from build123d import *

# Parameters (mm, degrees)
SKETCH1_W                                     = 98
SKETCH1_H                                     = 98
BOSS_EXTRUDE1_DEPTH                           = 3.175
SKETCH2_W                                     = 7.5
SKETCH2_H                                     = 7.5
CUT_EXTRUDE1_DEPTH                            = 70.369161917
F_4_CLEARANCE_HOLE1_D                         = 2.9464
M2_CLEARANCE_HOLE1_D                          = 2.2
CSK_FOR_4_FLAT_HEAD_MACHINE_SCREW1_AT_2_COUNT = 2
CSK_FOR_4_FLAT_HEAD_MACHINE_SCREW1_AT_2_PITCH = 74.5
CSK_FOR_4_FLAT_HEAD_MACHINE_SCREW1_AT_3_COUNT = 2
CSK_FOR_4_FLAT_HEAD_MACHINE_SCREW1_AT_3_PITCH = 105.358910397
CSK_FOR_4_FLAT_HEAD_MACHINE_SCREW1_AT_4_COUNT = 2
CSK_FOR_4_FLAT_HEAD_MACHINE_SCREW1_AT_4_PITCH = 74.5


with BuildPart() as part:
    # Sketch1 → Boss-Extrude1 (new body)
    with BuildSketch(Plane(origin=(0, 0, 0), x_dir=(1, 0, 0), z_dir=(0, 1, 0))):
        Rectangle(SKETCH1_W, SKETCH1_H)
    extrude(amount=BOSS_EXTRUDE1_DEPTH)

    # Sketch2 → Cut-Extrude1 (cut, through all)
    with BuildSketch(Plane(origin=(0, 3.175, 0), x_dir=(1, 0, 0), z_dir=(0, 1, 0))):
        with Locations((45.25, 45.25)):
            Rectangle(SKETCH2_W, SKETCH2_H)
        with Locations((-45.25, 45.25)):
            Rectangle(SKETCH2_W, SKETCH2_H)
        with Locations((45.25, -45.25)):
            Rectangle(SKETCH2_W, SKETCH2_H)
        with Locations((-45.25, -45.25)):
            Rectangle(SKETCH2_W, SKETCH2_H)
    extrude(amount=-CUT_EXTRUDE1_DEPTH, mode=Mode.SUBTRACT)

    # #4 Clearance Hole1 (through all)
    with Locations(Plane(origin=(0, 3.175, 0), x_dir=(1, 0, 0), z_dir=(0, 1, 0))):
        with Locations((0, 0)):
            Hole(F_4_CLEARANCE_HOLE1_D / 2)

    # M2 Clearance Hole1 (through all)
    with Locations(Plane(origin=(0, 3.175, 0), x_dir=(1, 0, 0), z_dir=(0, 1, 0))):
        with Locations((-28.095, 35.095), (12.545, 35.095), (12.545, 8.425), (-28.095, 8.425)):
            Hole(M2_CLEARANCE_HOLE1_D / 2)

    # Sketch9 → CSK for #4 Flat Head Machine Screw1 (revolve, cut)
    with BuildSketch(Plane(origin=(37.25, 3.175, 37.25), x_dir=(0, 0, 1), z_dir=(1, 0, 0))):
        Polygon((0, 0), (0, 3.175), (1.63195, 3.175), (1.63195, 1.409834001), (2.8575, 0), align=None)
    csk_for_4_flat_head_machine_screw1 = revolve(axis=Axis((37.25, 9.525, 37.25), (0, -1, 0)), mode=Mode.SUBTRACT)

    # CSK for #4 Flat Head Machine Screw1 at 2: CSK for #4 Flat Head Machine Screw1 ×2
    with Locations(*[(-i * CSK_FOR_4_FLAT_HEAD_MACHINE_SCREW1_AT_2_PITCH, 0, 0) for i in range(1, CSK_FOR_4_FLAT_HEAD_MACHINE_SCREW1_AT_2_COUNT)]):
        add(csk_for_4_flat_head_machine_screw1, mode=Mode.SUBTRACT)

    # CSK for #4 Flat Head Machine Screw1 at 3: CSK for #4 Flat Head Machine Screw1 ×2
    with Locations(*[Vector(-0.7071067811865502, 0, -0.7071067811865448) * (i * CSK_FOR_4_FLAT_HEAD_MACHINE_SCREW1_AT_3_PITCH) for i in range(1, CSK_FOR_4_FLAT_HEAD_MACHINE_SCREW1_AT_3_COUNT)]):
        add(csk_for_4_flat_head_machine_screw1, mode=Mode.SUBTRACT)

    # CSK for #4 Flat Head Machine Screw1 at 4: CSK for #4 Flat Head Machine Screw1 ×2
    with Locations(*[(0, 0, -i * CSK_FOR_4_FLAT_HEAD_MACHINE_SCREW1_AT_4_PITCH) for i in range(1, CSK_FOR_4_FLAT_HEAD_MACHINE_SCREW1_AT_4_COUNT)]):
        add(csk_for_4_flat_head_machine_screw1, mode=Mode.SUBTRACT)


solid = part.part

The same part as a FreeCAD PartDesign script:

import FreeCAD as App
import Part
import Sketcher

V = App.Vector
Q = App.Units.Quantity


def add_polygon(sketch, points):
    """Adds a closed chain of lines whose ends are joined by coincident constraints."""
    first, n = sketch.GeometryCount, len(points)
    for a, b in zip(points, points[1:] + points[:1]):
        sketch.addGeometry(Part.LineSegment(App.Vector(*a, 0), App.Vector(*b, 0)), False)
    for i in range(n):
        sketch.addConstraint(Sketcher.Constraint("Coincident", first + i, 2, first + (i + 1) % n, 1))

doc = App.newDocument("Part")
body = doc.addObject("PartDesign::Body", "Body")

# Sketch on XZ plane
sketch1 = doc.addObject("Sketcher::SketchObject", "Sketch")
body.addObject(sketch1)
sketch1.AttachmentSupport = (doc.XZ_Plane, [""])
sketch1.MapMode = "FlatFace"
add_polygon(sketch1, [(-49, -49), (-49, 49), (49, 49), (49, -49)])  # lines 0-3
sketch1.addConstraint([
    Sketcher.Constraint("Vertical", 0),
    Sketcher.Constraint("Horizontal", 1),
    Sketcher.Constraint("Vertical", 2),
    Sketcher.Constraint("Horizontal", 3),
    Sketcher.Constraint("Symmetric", 0, 2, 2, 2, -1, 1),
    Sketcher.Constraint("Equal", 3, 0),
    Sketcher.Constraint("DistanceX", 1, 1, 1, 2, 98.0),
])
pad1 = doc.addObject("PartDesign::Pad", "Pad")
body.addObject(pad1)
pad1.Profile = sketch1
pad1.Length = 3.175
pad1.Reversed = True

# Sketch on XZ plane
sketch2 = doc.addObject("Sketcher::SketchObject", "Sketch001")
body.addObject(sketch2)
sketch2.AttachmentSupport = (doc.XZ_Plane, [""])
sketch2.MapMode = "FlatFace"
sketch2.AttachmentOffset = App.Placement(V(0, 0, -3.175), App.Rotation())
add_polygon(sketch2, [(42, -49), (42, -42), (49, -42), (49, -49)])  # lines 0-3
add_polygon(sketch2, [(-49, -49), (-49, -42), (-42, -42), (-42, -49)])  # lines 4-7
add_polygon(sketch2, [(42, 42), (42, 49), (49, 49), (49, 42)])  # lines 8-11
add_polygon(sketch2, [(-49, 42), (-49, 49), (-42, 49), (-42, 42)])  # lines 12-15
sketch2.addConstraint([
    Sketcher.Constraint("Vertical", 0),
    Sketcher.Constraint("Horizontal", 1),
    Sketcher.Constraint("Vertical", 2),
    Sketcher.Constraint("Horizontal", 3),
    Sketcher.Constraint("Vertical", 4),
    Sketcher.Constraint("Horizontal", 5),
    Sketcher.Constraint("Vertical", 6),
    Sketcher.Constraint("Horizontal", 7),
    Sketcher.Constraint("Vertical", 8),
    Sketcher.Constraint("Horizontal", 9),
    Sketcher.Constraint("Vertical", 10),
    Sketcher.Constraint("Horizontal", 11),
    Sketcher.Constraint("Vertical", 12),
    Sketcher.Constraint("Horizontal", 13),
    Sketcher.Constraint("Vertical", 14),
    Sketcher.Constraint("Horizontal", 15),
    Sketcher.Constraint("Symmetric", 6, 2, 8, 2, -1, 1),
    Sketcher.Constraint("Symmetric", 4, 2, 10, 2, -1, 1),
    Sketcher.Constraint("Symmetric", 2, 2, 12, 2, -1, 1),
    Sketcher.Constraint("Symmetric", 0, 2, 14, 2, -1, 1),
    Sketcher.Constraint("Symmetric", 1, 2, 4, 2, -2),
    Sketcher.Constraint("Symmetric", 3, 2, 6, 2, -2),
    Sketcher.Constraint("Equal", 15, 0),
    Sketcher.Constraint("DistanceX", 1, 1, 1, 2, 7.5),
    Sketcher.Constraint("DistanceX", -1, 1, 1, 2, 49.0),
    Sketcher.Constraint("DistanceY", 2, 2, -1, 1, 49.0),
])
pocket1 = doc.addObject("PartDesign::Pocket", "Pocket")
body.addObject(pocket1)
pocket1.Profile = sketch2
pocket1.Type = "ThroughAll"
pocket1.Reversed = True

# Sketch on XZ plane
sketch3 = doc.addObject("Sketcher::SketchObject", "Sketch002")
body.addObject(sketch3)
sketch3.AttachmentSupport = (doc.XZ_Plane, [""])
sketch3.MapMode = "FlatFace"
sketch3.AttachmentOffset = App.Placement(V(0, 0, -3.175), App.Rotation())
sketch3.addGeometry(Part.Circle(V(0, 0, 0), V(0, 0, 1), 1.5), False)
sketch3.addConstraint([
    Sketcher.Constraint("Coincident", 0, 3, -1, 1),
    Sketcher.Constraint("Diameter", 0, 2.9464),
])
doc.recompute()
hole = doc.addObject("PartDesign::Hole", "Hole")
body.addObject(hole)
hole.Profile = sketch3
hole.ThreadType = "None"
hole.Diameter = 2.9464
hole.DepthType = "ThroughAll"
hole.Reversed = True

# Sketch on XZ plane
sketch4 = doc.addObject("Sketcher::SketchObject", "Sketch003")
body.addObject(sketch4)
sketch4.AttachmentSupport = (doc.XZ_Plane, [""])
sketch4.MapMode = "FlatFace"
sketch4.AttachmentOffset = App.Placement(V(0, 0, -3.175), App.Rotation())
sketch4.addGeometry([
    Part.Circle(V(-28.1, -35.1, 0), V(0, 0, 1), 1.1),
    Part.Circle(V(12.5, -35.1, 0), V(0, 0, 1), 1.1),
    Part.Circle(V(12.5, -8.4, 0), V(0, 0, 1), 1.1),
    Part.Circle(V(-28.1, -8.4, 0), V(0, 0, 1), 1.1),
], False)
sketch4.addConstraint([
    Sketcher.Constraint("Equal", 0, 1),
    Sketcher.Constraint("Equal", 1, 2),
    Sketcher.Constraint("Equal", 2, 3),
    Sketcher.Constraint("Horizontal", 0, 3, 1, 3),
    Sketcher.Constraint("Horizontal", 2, 3, 3, 3),
    Sketcher.Constraint("Vertical", 1, 3, 2, 3),
    Sketcher.Constraint("Vertical", 0, 3, 3, 3),
    Sketcher.Constraint("Diameter", 0, 2.2),
    Sketcher.Constraint("DistanceX", 0, 3, 1, 3, 40.64),
    Sketcher.Constraint("DistanceY", 1, 3, 2, 3, 26.67),
    Sketcher.Constraint("DistanceX", 0, 3, -1, 1, 28.095),
    Sketcher.Constraint("DistanceY", 0, 3, -1, 1, 35.095),
])
doc.recompute()
hole2 = doc.addObject("PartDesign::Hole", "Hole001")
body.addObject(hole2)
hole2.Profile = sketch4
hole2.ThreadType = "None"
hole2.Diameter = 2.2
hole2.DepthType = "ThroughAll"
hole2.Reversed = True

# Sketch on YZ plane
sketch5 = doc.addObject("Sketcher::SketchObject", "Sketch004")
body.addObject(sketch5)
sketch5.AttachmentSupport = (doc.YZ_Plane, [""])
sketch5.MapMode = "FlatFace"
sketch5.AttachmentOffset = App.Placement(V(0, 0, 37.25), App.Rotation())
add_polygon(sketch5, [(0, 37.2), (3.2, 37.2), (3.2, 40.1), (1.8, 38.9), (0, 38.9)])  # lines 0-4
sketch5.addGeometry(Part.LineSegment(V(3.2, 37.2, 0), V(0, 37.2, 0)), True)  # axis
sketch5.addConstraint([
    Sketcher.Constraint("Horizontal", 0),
    Sketcher.Constraint("Vertical", 1),
    Sketcher.Constraint("Horizontal", 3),
    Sketcher.Constraint("Vertical", 4),
    Sketcher.Constraint("Horizontal", 5),
    Sketcher.Constraint("Coincident", 5, 1, 0, 2),
    Sketcher.Constraint("PointOnObject", 3, 2, -2),
    Sketcher.Constraint("PointOnObject", 5, 2, -2),
    Sketcher.Constraint("Angle", 2, Q("-139 deg")),
    Sketcher.Constraint("DistanceX", 0, 1, 0, 2, 3.175),
    Sketcher.Constraint("DistanceY", -1, 1, 0, 2, 37.25),
    Sketcher.Constraint("DistanceY", 1, 1, 1, 2, 2.8575),
    Sketcher.Constraint("DistanceY", 4, 2, 4, 1, 1.63195),
])
groove = doc.addObject("PartDesign::Groove", "Groove")
body.addObject(groove)
groove.Profile = sketch5
groove.ReferenceAxis = (sketch5, ["Axis0"])
groove.Angle = 360
doc.recompute()

linearpattern = doc.addObject("PartDesign::LinearPattern", "LinearPattern")
body.addObject(linearpattern)
linearpattern.Originals = [groove]
linearpattern.Direction = (doc.X_Axis, [""])
linearpattern.Mode = "offset"
linearpattern.Offset = 74.5
linearpattern.Occurrences = 2
linearpattern.Reversed = True
body.Tip = linearpattern
doc.recompute()

datumline = doc.addObject("PartDesign::Line", "DatumLine")
body.addObject(datumline)
datumline.Placement = App.Placement(V(0, 0, 0), App.Rotation(V(0, 0, 1), V(-0.707106781, 0, -0.707106781)))
linearpattern2 = doc.addObject("PartDesign::LinearPattern", "LinearPattern001")
body.addObject(linearpattern2)
linearpattern2.Originals = [groove]
linearpattern2.Direction = (datumline, [""])
linearpattern2.Mode = "offset"
linearpattern2.Offset = 105.35891
linearpattern2.Occurrences = 2
body.Tip = linearpattern2
doc.recompute()

linearpattern3 = doc.addObject("PartDesign::LinearPattern", "LinearPattern002")
body.addObject(linearpattern3)
linearpattern3.Originals = [groove]
linearpattern3.Direction = (doc.Z_Axis, [""])
linearpattern3.Mode = "offset"
linearpattern3.Offset = 74.5
linearpattern3.Occurrences = 2
linearpattern3.Reversed = True
body.Tip = linearpattern3

doc.recompute()
